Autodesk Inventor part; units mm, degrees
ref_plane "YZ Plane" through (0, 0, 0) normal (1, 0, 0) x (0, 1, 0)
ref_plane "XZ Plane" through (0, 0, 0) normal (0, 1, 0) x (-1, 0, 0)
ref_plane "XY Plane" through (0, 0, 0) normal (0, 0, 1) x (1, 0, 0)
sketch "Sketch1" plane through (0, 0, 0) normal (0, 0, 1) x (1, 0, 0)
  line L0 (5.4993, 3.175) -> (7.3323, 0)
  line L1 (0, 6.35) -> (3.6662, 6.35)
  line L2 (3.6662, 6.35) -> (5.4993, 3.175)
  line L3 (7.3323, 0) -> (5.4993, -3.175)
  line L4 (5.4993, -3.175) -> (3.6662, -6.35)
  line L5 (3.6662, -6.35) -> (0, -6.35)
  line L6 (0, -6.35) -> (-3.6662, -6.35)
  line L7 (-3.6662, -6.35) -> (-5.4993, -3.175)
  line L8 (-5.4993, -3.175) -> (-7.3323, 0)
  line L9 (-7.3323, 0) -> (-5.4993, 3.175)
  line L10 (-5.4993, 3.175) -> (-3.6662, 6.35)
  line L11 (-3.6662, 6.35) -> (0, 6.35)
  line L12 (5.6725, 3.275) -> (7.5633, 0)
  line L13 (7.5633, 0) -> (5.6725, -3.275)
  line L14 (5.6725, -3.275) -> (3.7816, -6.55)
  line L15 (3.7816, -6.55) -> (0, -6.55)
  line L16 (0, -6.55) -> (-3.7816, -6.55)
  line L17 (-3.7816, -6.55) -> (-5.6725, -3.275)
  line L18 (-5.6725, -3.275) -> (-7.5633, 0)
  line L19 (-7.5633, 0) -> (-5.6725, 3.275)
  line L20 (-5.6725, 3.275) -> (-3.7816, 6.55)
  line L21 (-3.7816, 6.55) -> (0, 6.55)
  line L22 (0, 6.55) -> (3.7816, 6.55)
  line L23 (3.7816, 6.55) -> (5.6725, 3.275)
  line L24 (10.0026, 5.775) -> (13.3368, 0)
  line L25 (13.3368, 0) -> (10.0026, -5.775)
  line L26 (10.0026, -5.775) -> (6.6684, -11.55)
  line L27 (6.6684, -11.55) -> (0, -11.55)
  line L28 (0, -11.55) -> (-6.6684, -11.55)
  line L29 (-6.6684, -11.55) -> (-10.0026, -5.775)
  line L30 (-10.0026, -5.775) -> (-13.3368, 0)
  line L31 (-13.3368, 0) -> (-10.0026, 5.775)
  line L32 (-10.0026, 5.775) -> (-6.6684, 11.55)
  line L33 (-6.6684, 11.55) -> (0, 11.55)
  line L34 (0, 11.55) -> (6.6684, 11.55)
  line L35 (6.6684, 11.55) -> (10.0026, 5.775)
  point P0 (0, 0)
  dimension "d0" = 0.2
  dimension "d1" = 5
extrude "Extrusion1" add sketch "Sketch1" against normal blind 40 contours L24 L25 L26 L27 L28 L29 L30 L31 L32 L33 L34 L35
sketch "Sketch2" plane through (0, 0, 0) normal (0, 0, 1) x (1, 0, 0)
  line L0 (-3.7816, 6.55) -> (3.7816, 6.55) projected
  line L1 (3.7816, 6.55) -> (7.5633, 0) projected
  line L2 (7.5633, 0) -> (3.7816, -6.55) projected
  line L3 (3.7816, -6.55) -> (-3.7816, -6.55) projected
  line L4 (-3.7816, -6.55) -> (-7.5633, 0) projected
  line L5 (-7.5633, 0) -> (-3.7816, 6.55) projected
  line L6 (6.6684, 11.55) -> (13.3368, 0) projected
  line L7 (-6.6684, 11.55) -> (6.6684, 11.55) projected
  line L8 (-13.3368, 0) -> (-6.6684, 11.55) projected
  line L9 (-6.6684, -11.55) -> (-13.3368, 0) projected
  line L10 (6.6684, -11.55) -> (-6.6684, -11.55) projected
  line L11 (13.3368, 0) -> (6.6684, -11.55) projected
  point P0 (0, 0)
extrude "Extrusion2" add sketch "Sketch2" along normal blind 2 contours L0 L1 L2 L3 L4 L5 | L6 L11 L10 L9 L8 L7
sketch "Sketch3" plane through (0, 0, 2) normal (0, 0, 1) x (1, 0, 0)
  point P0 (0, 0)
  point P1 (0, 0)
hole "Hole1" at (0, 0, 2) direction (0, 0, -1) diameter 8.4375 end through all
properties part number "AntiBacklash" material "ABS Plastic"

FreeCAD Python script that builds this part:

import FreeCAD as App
import Part
import Sketcher
from FreeCAD import Vector
Q = App.Units.Quantity

doc = App.newDocument("Part")
params = doc.addObject("Spreadsheet::Sheet", "Params")
for row, (alias, value) in enumerate([
    ("pad1_length", "40 mm"),
    ("pad2_length", "2 mm"),
    ("hole_diameter", "8.4375 mm"),
], start=1):
    params.set(f"A{row}", alias)
    params.set(f"B{row}", "=" + value)
    params.setAlias(f"B{row}", alias)

body = doc.addObject("PartDesign::Body", "Body")

# Sketch on XY plane
sketch1 = doc.addObject("Sketcher::SketchObject", "Sketch")
body.addObject(sketch1)
sketch1.AttachmentSupport = (doc.XY_Plane, [""])
sketch1.MapMode = "FlatFace"
sketch1.addGeometry([
    Part.LineSegment(Vector(13.3, 0, 0), Vector(6.7, 11.6, 0)),  # 0
    Part.LineSegment(Vector(6.7, 11.6, 0), Vector(-6.7, 11.6, 0)),  # 1
    Part.LineSegment(Vector(-6.7, 11.6, 0), Vector(-13.3, 0, 0)),  # 2
    Part.LineSegment(Vector(-13.3, 0, 0), Vector(-6.7, -11.6, 0)),  # 3
    Part.LineSegment(Vector(-6.7, -11.6, 0), Vector(6.7, -11.6, 0)),  # 4
    Part.LineSegment(Vector(6.7, -11.6, 0), Vector(13.3, 0, 0)),  # 5
    Part.LineSegment(Vector(3.8, 6.5, 0), Vector(5.7, 3.3, 0)),  # 6
    Part.LineSegment(Vector(5.7, 3.3, 0), Vector(7.6, 0, 0)),  # 7
    Part.LineSegment(Vector(7.6, 0, 0), Vector(5.7, -3.3, 0)),  # 8
    Part.LineSegment(Vector(5.7, -3.3, 0), Vector(3.8, -6.5, 0)),  # 9
    Part.LineSegment(Vector(3.8, -6.5, 0), Vector(-3.8, -6.5, 0)),  # 10
    Part.LineSegment(Vector(-3.8, -6.5, 0), Vector(-5.7, -3.3, 0)),  # 11
    Part.LineSegment(Vector(-5.7, -3.3, 0), Vector(-7.6, 0, 0)),  # 12
    Part.LineSegment(Vector(-7.6, 0, 0), Vector(-5.7, 3.3, 0)),  # 13
    Part.LineSegment(Vector(-5.7, 3.3, 0), Vector(-3.8, 6.5, 0)),  # 14
    Part.LineSegment(Vector(-3.8, 6.5, 0), Vector(3.8, 6.5, 0)),  # 15
], False)
sketch1.addConstraint([
    Sketcher.Constraint("Coincident", 0, 2, 1, 1),
    Sketcher.Constraint("Coincident", 1, 2, 2, 1),
    Sketcher.Constraint("Coincident", 2, 2, 3, 1),
    Sketcher.Constraint("Coincident", 3, 2, 4, 1),
    Sketcher.Constraint("Coincident", 4, 2, 5, 1),
    Sketcher.Constraint("Coincident", 5, 2, 0, 1),
    Sketcher.Constraint("Coincident", 6, 2, 7, 1),
    Sketcher.Constraint("Coincident", 7, 2, 8, 1),
    Sketcher.Constraint("Coincident", 8, 2, 9, 1),
    Sketcher.Constraint("Coincident", 9, 2, 10, 1),
    Sketcher.Constraint("Coincident", 10, 2, 11, 1),
    Sketcher.Constraint("Coincident", 11, 2, 12, 1),
    Sketcher.Constraint("Coincident", 12, 2, 13, 1),
    Sketcher.Constraint("Coincident", 13, 2, 14, 1),
    Sketcher.Constraint("Coincident", 14, 2, 15, 1),
    Sketcher.Constraint("Coincident", 15, 2, 6, 1),
    Sketcher.Constraint("Horizontal", 1),
    Sketcher.Constraint("Horizontal", 4),
    Sketcher.Constraint("Horizontal", 10),
    Sketcher.Constraint("Horizontal", 15),
    Sketcher.Constraint("Symmetric", 0, 2, 3, 2, -1, 1),
    Sketcher.Constraint("Symmetric", 2, 2, 5, 2, -1, 1),
    Sketcher.Constraint("Symmetric", 6, 2, 11, 2, -1, 1),
    Sketcher.Constraint("Symmetric", 7, 2, 12, 2, -1, 1),
    Sketcher.Constraint("Symmetric", 8, 2, 13, 2, -1, 1),
    Sketcher.Constraint("Symmetric", 9, 2, 14, 2, -1, 1),
    Sketcher.Constraint("Symmetric", 8, 2, 11, 2, -2),
    Sketcher.Constraint("PointOnObject", 2, 2, -1),
    Sketcher.Constraint("PointOnObject", 7, 2, -1),
    Sketcher.Constraint("Parallel", 2, 5),
    Sketcher.Constraint("Parallel", 3, 6),
    Sketcher.Constraint("Parallel", 6, 7),
    Sketcher.Constraint("Parallel", 5, 8),
    Sketcher.Constraint("Parallel", 8, 9),
    Sketcher.Constraint("Parallel", 7, 11),
    Sketcher.Constraint("Equal", 6, 7),
    Sketcher.Constraint("DistanceY", 4, 2, 9, 2, 5.0),
    Sketcher.Constraint("Angle", 0, Q("120 deg")),
    Sketcher.Constraint("DistanceY", 3, 2, 1, 2, 23.1),
    Sketcher.Constraint("DistanceX", 3, 2, 9, 2, 10.45),
    Sketcher.Constraint("DistanceX", 1, 2, 1, 1, 13.3368),
])
pad1 = doc.addObject("PartDesign::Pad", "Pad")
body.addObject(pad1)
pad1.Profile = sketch1
pad1.setExpression("Length", "Params.pad1_length")
pad1.Reversed = True

# Sketch on XY plane
sketch2 = doc.addObject("Sketcher::SketchObject", "Sketch001")
body.addObject(sketch2)
sketch2.AttachmentSupport = (doc.XY_Plane, [""])
sketch2.MapMode = "FlatFace"
sketch2.addGeometry([
    Part.LineSegment(Vector(13, 0, 0), Vector(7, 12, 0)),  # 0
    Part.LineSegment(Vector(7, 12, 0), Vector(-7, 12, 0)),  # 1
    Part.LineSegment(Vector(-7, 12, 0), Vector(-13, 0, 0)),  # 2
    Part.LineSegment(Vector(-13, 0, 0), Vector(-7, -12, 0)),  # 3
    Part.LineSegment(Vector(-7, -12, 0), Vector(7, -12, 0)),  # 4
    Part.LineSegment(Vector(7, -12, 0), Vector(13, 0, 0)),  # 5
], False)
sketch2.addConstraint([
    Sketcher.Constraint("Coincident", 0, 2, 1, 1),
    Sketcher.Constraint("Coincident", 1, 2, 2, 1),
    Sketcher.Constraint("Coincident", 2, 2, 3, 1),
    Sketcher.Constraint("Coincident", 3, 2, 4, 1),
    Sketcher.Constraint("Coincident", 4, 2, 5, 1),
    Sketcher.Constraint("Coincident", 5, 2, 0, 1),
    Sketcher.Constraint("Horizontal", 1),
    Sketcher.Constraint("Horizontal", 4),
    Sketcher.Constraint("Symmetric", 0, 2, 3, 2, -1, 1),
    Sketcher.Constraint("Symmetric", 2, 2, 5, 2, -1, 1),
    Sketcher.Constraint("PointOnObject", 2, 2, -1),
    Sketcher.Constraint("Parallel", 2, 5),
    Sketcher.Constraint("Vertical", 1, 2, 3, 2),
    Sketcher.Constraint("Angle", 0, Q("120 deg")),
    Sketcher.Constraint("DistanceY", 3, 2, 1, 2, 23.1),
    Sketcher.Constraint("DistanceX", 1, 2, 1, 1, 13.3368),
])
pad2 = doc.addObject("PartDesign::Pad", "Pad001")
body.addObject(pad2)
pad2.Profile = sketch2
pad2.setExpression("Length", "Params.pad2_length")

# Sketch on XY plane
sketch3 = doc.addObject("Sketcher::SketchObject", "Sketch002")
body.addObject(sketch3)
sketch3.AttachmentSupport = (doc.XY_Plane, [""])
sketch3.MapMode = "FlatFace"
sketch3.AttachmentOffset = App.Placement(Vector(0, 0, 2), App.Rotation())
sketch3.addGeometry(Part.Circle(Vector(0, 0, 0), Vector(0, 0, 1), 4.2), False)
sketch3.addConstraint([
    Sketcher.Constraint("Coincident", 0, 3, -1, 1),
    Sketcher.Constraint("Diameter", 0, 8.4375),
])
doc.recompute()
hole = doc.addObject("PartDesign::Hole", "Hole")
body.addObject(hole)
hole.Profile = sketch3
hole.ThreadType = "None"
hole.setExpression("Diameter", "Params.hole_diameter")
hole.DepthType = "ThroughAll"

doc.recompute()
